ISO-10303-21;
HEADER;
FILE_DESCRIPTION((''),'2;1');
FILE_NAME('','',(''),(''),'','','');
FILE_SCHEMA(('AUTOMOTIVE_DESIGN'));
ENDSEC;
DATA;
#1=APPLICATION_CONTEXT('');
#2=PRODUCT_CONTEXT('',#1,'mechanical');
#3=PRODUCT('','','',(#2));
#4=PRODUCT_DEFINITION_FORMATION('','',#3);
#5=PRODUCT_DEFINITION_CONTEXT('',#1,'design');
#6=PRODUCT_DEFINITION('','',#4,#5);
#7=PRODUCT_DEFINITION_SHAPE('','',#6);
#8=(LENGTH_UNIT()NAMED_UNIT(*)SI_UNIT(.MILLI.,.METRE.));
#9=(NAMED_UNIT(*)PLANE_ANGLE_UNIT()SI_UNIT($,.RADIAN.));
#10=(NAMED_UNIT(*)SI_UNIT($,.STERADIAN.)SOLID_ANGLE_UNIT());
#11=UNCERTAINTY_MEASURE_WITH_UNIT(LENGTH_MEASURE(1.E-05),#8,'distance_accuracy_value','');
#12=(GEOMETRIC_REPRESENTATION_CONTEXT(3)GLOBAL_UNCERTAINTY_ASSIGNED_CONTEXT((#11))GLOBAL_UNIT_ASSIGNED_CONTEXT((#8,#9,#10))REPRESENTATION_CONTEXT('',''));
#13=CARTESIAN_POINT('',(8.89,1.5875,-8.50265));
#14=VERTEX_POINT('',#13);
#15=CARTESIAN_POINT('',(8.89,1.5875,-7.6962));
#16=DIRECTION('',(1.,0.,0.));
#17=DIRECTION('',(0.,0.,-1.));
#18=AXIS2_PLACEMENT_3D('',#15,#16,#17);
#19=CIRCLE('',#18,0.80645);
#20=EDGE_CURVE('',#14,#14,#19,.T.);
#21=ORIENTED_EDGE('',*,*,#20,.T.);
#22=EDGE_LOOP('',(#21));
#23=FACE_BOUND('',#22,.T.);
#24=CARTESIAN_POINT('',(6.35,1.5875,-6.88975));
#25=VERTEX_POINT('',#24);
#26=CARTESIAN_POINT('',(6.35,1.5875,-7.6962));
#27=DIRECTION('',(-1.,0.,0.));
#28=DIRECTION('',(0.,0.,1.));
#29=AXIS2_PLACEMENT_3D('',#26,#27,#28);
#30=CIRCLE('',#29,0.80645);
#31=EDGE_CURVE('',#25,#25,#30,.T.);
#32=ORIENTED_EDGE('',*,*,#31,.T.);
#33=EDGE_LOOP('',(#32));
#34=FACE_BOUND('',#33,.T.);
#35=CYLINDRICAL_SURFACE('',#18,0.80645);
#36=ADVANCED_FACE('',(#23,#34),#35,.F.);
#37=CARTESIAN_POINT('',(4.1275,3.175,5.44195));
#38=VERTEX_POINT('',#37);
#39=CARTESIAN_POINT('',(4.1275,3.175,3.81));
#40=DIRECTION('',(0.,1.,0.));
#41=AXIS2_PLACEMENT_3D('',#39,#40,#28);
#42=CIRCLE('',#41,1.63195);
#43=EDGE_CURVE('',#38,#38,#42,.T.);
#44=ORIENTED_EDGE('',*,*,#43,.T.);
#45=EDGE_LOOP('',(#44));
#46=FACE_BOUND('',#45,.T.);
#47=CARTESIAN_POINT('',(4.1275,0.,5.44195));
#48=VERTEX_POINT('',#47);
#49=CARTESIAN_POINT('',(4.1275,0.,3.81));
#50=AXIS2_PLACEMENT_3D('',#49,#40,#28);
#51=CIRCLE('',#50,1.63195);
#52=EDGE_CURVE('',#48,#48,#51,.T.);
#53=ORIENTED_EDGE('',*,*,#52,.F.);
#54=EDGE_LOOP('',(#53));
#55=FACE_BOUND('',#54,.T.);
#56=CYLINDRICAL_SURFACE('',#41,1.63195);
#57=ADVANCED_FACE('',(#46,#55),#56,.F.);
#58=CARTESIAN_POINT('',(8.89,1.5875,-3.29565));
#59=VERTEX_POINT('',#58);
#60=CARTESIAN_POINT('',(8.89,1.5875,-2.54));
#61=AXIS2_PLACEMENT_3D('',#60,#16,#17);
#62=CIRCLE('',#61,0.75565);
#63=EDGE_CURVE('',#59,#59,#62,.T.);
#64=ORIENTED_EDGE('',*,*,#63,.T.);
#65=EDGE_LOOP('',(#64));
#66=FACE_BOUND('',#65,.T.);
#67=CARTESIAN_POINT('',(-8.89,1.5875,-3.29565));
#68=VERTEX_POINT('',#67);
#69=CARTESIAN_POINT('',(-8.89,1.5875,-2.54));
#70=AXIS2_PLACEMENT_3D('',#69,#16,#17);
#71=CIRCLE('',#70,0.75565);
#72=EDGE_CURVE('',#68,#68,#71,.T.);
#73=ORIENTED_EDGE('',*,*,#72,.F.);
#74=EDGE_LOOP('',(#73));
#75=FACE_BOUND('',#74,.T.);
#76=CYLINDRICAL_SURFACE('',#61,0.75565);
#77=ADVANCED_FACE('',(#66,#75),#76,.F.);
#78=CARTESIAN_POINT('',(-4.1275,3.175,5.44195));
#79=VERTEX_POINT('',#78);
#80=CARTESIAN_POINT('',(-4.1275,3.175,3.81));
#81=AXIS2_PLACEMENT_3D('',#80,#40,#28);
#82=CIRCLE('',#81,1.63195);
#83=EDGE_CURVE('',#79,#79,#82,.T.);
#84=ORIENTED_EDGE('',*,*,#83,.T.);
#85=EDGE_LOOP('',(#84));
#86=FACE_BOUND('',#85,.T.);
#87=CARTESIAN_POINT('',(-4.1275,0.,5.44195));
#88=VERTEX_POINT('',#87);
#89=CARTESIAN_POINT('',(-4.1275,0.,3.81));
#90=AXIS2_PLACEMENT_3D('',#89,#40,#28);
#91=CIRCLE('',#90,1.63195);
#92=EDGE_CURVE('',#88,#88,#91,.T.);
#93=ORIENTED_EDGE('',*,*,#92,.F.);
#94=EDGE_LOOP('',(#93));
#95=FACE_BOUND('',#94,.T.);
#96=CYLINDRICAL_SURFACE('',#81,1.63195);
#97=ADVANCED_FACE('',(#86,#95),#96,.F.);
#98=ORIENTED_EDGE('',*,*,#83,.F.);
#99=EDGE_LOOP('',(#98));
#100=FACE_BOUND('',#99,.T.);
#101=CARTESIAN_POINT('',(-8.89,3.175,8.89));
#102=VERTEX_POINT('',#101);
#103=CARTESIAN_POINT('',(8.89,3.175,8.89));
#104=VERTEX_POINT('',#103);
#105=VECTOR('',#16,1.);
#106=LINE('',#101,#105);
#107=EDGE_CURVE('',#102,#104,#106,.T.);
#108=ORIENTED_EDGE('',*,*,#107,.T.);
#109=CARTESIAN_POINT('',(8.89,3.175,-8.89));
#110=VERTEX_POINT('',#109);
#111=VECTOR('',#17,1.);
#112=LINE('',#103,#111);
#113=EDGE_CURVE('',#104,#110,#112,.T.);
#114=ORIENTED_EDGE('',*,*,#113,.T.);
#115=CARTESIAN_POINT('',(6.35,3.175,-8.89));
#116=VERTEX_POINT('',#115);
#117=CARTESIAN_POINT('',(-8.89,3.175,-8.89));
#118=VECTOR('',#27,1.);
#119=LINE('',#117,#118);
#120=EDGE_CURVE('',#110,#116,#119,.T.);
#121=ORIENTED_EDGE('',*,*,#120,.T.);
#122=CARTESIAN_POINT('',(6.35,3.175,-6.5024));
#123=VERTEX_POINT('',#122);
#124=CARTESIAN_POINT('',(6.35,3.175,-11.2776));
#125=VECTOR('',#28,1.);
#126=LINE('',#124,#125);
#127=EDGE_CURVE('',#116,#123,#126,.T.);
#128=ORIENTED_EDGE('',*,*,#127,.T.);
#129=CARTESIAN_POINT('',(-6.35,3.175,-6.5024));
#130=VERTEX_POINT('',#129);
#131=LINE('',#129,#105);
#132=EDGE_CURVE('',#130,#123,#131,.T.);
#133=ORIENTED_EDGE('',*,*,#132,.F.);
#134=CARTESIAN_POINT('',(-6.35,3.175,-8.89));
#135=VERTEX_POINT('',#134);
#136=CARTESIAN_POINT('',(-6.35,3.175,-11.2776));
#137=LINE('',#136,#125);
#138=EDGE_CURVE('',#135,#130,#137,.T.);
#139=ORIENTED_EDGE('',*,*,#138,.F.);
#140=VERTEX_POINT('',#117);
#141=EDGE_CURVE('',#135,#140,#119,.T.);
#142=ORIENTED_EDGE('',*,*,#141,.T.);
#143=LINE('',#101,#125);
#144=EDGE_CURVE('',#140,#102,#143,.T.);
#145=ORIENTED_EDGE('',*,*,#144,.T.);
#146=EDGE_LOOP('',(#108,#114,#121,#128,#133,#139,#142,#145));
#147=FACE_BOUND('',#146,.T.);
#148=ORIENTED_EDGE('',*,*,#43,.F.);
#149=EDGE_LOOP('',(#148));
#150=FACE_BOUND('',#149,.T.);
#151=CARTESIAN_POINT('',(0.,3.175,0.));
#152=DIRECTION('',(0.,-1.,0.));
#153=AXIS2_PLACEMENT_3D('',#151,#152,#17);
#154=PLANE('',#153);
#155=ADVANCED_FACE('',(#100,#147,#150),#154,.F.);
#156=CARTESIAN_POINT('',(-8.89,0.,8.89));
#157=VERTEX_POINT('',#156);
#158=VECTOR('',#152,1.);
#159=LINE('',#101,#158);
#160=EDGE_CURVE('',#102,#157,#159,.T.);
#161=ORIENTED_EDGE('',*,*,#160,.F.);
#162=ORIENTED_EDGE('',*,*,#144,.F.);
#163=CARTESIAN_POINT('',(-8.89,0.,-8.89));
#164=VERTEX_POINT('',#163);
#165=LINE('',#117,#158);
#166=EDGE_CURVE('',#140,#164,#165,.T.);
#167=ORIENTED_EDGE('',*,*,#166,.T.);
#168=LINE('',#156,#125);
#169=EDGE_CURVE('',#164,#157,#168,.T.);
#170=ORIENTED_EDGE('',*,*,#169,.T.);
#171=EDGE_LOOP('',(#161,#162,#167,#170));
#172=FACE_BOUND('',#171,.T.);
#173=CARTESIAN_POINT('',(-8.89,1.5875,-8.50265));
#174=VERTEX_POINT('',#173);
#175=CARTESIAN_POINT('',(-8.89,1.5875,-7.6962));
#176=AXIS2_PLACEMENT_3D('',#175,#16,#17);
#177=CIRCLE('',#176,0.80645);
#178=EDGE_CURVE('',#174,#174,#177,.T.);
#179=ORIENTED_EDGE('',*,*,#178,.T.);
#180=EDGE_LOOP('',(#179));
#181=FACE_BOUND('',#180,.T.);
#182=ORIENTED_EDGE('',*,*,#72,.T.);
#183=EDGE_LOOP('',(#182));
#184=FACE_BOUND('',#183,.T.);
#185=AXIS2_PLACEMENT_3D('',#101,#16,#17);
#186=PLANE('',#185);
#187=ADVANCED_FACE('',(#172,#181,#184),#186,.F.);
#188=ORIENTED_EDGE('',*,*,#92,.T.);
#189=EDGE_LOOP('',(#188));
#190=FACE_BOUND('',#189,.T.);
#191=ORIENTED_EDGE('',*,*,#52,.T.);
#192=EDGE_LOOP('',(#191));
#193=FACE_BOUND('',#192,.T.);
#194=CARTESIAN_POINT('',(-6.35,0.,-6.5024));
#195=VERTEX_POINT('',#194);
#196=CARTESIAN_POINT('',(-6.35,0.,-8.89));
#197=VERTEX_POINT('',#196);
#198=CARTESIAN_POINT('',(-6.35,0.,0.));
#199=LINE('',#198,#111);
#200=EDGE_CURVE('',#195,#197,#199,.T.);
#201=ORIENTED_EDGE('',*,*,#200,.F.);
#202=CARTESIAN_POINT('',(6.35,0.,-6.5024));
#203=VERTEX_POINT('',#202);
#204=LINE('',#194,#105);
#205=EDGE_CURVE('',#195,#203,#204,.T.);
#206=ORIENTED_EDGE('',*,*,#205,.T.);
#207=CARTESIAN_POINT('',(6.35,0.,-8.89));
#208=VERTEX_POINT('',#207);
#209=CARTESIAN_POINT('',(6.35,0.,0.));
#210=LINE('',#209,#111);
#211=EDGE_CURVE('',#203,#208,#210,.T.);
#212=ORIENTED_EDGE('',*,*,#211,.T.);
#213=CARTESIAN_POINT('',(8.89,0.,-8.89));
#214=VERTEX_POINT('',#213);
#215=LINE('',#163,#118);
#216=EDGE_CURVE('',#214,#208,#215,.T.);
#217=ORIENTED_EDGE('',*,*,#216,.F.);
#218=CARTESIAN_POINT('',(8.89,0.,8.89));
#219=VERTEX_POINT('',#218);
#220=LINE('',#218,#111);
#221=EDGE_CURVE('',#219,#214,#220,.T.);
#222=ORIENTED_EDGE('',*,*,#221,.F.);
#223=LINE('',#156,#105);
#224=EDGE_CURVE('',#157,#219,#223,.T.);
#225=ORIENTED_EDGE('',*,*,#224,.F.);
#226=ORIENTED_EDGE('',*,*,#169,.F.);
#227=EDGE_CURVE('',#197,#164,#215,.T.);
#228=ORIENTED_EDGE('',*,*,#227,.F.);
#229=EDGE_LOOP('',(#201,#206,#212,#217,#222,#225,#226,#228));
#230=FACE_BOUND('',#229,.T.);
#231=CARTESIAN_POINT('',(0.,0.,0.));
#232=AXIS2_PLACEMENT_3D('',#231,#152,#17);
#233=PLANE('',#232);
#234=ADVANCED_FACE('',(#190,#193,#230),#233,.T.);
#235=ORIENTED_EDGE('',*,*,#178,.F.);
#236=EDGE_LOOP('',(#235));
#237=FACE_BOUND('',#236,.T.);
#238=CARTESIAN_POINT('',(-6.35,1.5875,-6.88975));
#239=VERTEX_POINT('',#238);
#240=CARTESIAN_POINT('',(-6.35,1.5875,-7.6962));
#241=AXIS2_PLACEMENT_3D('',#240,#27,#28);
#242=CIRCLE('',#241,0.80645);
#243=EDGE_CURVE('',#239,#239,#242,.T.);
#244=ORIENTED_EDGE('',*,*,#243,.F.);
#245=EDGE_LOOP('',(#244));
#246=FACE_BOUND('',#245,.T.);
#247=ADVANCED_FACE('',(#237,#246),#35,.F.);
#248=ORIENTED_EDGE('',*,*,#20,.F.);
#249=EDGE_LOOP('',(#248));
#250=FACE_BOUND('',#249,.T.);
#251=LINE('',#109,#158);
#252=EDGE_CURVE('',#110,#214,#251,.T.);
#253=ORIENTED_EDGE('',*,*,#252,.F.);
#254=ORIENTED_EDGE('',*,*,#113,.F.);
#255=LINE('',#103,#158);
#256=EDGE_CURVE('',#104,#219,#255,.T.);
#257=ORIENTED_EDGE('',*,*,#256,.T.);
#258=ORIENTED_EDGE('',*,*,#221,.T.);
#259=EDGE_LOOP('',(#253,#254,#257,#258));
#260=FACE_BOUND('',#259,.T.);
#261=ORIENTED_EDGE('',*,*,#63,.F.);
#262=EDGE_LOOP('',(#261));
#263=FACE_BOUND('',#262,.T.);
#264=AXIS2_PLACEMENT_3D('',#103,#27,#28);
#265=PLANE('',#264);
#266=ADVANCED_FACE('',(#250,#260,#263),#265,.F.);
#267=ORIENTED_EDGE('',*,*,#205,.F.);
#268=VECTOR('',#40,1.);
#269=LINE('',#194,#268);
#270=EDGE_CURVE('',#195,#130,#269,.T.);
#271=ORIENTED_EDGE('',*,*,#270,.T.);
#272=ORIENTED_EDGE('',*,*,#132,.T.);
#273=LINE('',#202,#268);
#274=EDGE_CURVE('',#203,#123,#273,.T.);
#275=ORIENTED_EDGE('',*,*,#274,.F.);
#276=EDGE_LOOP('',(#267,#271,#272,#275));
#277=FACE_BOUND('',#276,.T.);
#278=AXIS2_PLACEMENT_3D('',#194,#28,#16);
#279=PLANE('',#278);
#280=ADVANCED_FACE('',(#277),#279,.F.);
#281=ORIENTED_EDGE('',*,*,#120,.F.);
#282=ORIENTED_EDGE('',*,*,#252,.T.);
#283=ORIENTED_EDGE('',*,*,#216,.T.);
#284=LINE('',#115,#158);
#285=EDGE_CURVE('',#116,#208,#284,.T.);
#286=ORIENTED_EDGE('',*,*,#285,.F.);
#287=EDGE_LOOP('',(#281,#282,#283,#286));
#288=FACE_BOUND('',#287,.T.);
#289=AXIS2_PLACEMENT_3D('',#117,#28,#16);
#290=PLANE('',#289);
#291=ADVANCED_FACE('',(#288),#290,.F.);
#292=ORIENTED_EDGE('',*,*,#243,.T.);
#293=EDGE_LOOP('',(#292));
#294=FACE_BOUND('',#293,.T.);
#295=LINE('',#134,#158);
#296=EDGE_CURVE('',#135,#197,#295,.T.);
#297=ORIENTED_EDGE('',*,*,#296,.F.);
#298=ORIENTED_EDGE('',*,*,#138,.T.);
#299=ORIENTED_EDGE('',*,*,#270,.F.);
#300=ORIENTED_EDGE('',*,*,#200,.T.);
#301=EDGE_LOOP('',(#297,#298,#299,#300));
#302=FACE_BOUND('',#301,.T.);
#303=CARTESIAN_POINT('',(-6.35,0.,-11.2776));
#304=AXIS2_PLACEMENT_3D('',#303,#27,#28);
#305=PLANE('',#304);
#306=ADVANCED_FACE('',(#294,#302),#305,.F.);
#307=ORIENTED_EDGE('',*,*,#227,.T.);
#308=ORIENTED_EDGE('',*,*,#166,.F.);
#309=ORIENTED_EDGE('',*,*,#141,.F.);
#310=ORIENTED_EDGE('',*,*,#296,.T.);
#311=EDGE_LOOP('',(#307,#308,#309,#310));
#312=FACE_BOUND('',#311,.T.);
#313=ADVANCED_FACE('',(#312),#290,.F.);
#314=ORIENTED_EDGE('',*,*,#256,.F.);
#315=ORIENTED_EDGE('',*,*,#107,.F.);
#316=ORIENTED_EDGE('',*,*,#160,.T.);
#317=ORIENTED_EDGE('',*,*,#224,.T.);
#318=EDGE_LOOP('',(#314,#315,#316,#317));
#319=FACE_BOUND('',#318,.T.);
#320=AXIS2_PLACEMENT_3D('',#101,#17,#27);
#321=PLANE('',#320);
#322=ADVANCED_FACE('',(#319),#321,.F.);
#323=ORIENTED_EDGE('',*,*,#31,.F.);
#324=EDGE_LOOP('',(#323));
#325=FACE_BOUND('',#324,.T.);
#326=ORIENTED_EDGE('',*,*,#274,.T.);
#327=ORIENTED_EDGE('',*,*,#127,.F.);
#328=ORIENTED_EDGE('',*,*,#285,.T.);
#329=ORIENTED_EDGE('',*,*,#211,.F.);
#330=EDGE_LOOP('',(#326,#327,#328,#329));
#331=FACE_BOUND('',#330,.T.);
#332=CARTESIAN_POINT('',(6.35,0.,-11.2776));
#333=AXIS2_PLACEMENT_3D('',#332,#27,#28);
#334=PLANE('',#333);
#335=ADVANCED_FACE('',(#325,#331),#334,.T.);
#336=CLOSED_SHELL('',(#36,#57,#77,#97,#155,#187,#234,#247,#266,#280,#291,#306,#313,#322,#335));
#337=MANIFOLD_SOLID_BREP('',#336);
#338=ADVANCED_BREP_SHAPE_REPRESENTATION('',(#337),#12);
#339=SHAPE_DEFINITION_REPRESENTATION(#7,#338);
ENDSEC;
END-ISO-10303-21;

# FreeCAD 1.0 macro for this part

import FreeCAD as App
import Part
import Sketcher

V = App.Vector
Q = App.Units.Quantity


def add_polygon(sketch, points):
    """Adds a closed chain of lines whose ends are joined by coincident constraints."""
    first, n = sketch.GeometryCount, len(points)
    for a, b in zip(points, points[1:] + points[:1]):
        sketch.addGeometry(Part.LineSegment(App.Vector(*a, 0), App.Vector(*b, 0)), False)
    for i in range(n):
        sketch.addConstraint(Sketcher.Constraint("Coincident", first + i, 2, first + (i + 1) % n, 1))

doc = App.newDocument("Part")
body = doc.addObject("PartDesign::Body", "Body")

sketch1 = doc.addObject("Sketcher::SketchObject", "Sketch")
body.addObject(sketch1)
sketch1.AttachmentSupport = (doc.XZ_Plane, [""])
sketch1.MapMode = "FlatFace"
add_polygon(sketch1, [(-9, -9), (-9, 9), (9, 9), (9, -9)])
sketch1.addConstraint([
    Sketcher.Constraint("Vertical", 0),
    Sketcher.Constraint("Horizontal", 1),
    Sketcher.Constraint("Vertical", 2),
    Sketcher.Constraint("Horizontal", 3),
    Sketcher.Constraint("Symmetric", 0, 2, 2, 2, -1, 1),
    Sketcher.Constraint("Equal", 3, 0),
    Sketcher.Constraint("DistanceX", 1, 1, 1, 2, Q("0.7 in")),
])
pad1 = doc.addObject("PartDesign::Pad", "Pad")
body.addObject(pad1)
pad1.Profile = sketch1
pad1.Length = Q("0.125 in")
pad1.Reversed = True

sketch2 = doc.addObject("Sketcher::SketchObject", "Sketch001")
body.addObject(sketch2)
sketch2.AttachmentSupport = (doc.XZ_Plane, [""])
sketch2.MapMode = "FlatFace"
sketch2.AttachmentOffset = App.Placement(V(0, 0, -0.125 * 25.4), App.Rotation())
add_polygon(sketch2, [(-6.3, -11.3), (-6.3, -6.5), (6.3, -6.5), (6.3, -11.3)])
sketch2.addConstraint([
    Sketcher.Constraint("Vertical", 0),
    Sketcher.Constraint("Horizontal", 1),
    Sketcher.Constraint("Vertical", 2),
    Sketcher.Constraint("Horizontal", 3),
    Sketcher.Constraint("DistanceX", 1, 1, 1, 2, Q("0.5 in")),
    Sketcher.Constraint("DistanceY", 0, 1, 0, 2, Q("0.188 in")),
    Sketcher.Constraint("DistanceX", 0, 2, -1, 1, Q("0.25 in")),
    Sketcher.Constraint("DistanceY", 0, 2, -1, 1, Q("0.256 in")),
])
pocket1 = doc.addObject("PartDesign::Pocket", "Pocket")
body.addObject(pocket1)
pocket1.Profile = sketch2
pocket1.Type = "ThroughAll"
pocket1.Reversed = True

sketch3 = doc.addObject("Sketcher::SketchObject", "Sketch002")
body.addObject(sketch3)
sketch3.AttachmentSupport = (doc.XZ_Plane, [""])
sketch3.MapMode = "FlatFace"
sketch3.AttachmentOffset = App.Placement(V(0, 0, -0.125 * 25.4), App.Rotation())
sketch3.addGeometry([
    Part.Circle(V(4.1, 3.8, 0), V(0, 0, 1), 1.6),
    Part.Circle(V(-4.1, 3.8, 0), V(0, 0, 1), 1.6),
], False)
sketch3.addConstraint([
    Sketcher.Constraint("Equal", 0, 1),
    Sketcher.Constraint("Symmetric", 0, 3, 1, 3, -2),
    Sketcher.Constraint("Diameter", 0, Q("0.1285 in")),
    Sketcher.Constraint("DistanceY", -1, 1, 0, 3, Q("0.15 in")),
    Sketcher.Constraint("DistanceX", 1, 3, 0, 3, Q("0.325 in")),
])
doc.recompute()
hole = doc.addObject("PartDesign::Hole", "Hole")
body.addObject(hole)
hole.Profile = sketch3
hole.ThreadType = "None"
hole.Diameter = Q("0.1285 in")
hole.DepthType = "ThroughAll"
hole.Reversed = True

sketch4 = doc.addObject("Sketcher::SketchObject", "Sketch003")
body.addObject(sketch4)
sketch4.AttachmentSupport = (doc.YZ_Plane, [""])
sketch4.MapMode = "FlatFace"
sketch4.AttachmentOffset = App.Placement(V(0, 0, 0.35 * 25.4), App.Rotation())
sketch4.addGeometry(Part.Circle(V(1.6, -7.7, 0), V(0, 0, 1), 0.8), False)
sketch4.addConstraint([
    Sketcher.Constraint("Diameter", 0, Q("0.0635 in")),
    Sketcher.Constraint("DistanceX", -1, 1, 0, 3, Q("0.0625 in")),
    Sketcher.Constraint("DistanceY", 0, 3, -1, 1, Q("0.303 in")),
])
doc.recompute()
hole2 = doc.addObject("PartDesign::Hole", "Hole001")
body.addObject(hole2)
hole2.Profile = sketch4
hole2.ThreadType = "None"
hole2.Diameter = Q("0.0635 in")
hole2.DepthType = "ThroughAll"

sketch5 = doc.addObject("Sketcher::SketchObject", "Sketch004")
body.addObject(sketch5)
sketch5.AttachmentSupport = (doc.YZ_Plane, [""])
sketch5.MapMode = "FlatFace"
sketch5.AttachmentOffset = App.Placement(V(0, 0, 0.35 * 25.4), App.Rotation())
sketch5.addGeometry(Part.Circle(V(1.6, -2.5, 0), V(0, 0, 1), 0.8), False)
sketch5.addConstraint([
    Sketcher.Constraint("Diameter", 0, Q("0.0595 in")),
    Sketcher.Constraint("DistanceY", 0, 3, -1, 1, Q("0.1 in")),
    Sketcher.Constraint("DistanceX", -1, 1, 0, 3, Q("0.0625 in")),
])
doc.recompute()
hole3 = doc.addObject("PartDesign::Hole", "Hole002")
body.addObject(hole3)
hole3.Profile = sketch5
hole3.ThreadType = "None"
hole3.Diameter = Q("0.0595 in")
hole3.DepthType = "ThroughAll"

doc.recompute()
